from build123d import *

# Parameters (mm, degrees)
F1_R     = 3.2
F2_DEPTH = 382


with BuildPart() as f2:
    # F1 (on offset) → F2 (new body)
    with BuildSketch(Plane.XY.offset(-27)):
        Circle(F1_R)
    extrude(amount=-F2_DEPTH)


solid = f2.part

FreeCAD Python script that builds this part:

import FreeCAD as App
import Part
import Sketcher
Q = App.Units.Quantity

doc = App.newDocument("Part")
body = doc.addObject("PartDesign::Body", "Body")

# Sketch on XY plane
sketch1 = body.newObject("Sketcher::SketchObject", "Sketch")
sketch1.AttachmentSupport = (doc.getObject("XY_Plane"), [""])
sketch1.MapMode = "FlatFace"
sketch1.AttachmentOffset = App.Placement(App.Vector(0, 0, -27), App.Rotation())
sketch1.addGeometry(Part.Circle(App.Vector(0, 0, 0), App.Vector(0, 0, 1), 3.2), False)
sketch1.addConstraint(Sketcher.Constraint("Coincident", 0, 3, -1, 1))
sketch1.addConstraint(Sketcher.Constraint("Diameter", 0, Q("6.4 mm")))
pad1 = body.newObject("PartDesign::Pad", "Pad")
pad1.Profile = sketch1
pad1.Length = 382
pad1.Reversed = True

doc.recompute()
